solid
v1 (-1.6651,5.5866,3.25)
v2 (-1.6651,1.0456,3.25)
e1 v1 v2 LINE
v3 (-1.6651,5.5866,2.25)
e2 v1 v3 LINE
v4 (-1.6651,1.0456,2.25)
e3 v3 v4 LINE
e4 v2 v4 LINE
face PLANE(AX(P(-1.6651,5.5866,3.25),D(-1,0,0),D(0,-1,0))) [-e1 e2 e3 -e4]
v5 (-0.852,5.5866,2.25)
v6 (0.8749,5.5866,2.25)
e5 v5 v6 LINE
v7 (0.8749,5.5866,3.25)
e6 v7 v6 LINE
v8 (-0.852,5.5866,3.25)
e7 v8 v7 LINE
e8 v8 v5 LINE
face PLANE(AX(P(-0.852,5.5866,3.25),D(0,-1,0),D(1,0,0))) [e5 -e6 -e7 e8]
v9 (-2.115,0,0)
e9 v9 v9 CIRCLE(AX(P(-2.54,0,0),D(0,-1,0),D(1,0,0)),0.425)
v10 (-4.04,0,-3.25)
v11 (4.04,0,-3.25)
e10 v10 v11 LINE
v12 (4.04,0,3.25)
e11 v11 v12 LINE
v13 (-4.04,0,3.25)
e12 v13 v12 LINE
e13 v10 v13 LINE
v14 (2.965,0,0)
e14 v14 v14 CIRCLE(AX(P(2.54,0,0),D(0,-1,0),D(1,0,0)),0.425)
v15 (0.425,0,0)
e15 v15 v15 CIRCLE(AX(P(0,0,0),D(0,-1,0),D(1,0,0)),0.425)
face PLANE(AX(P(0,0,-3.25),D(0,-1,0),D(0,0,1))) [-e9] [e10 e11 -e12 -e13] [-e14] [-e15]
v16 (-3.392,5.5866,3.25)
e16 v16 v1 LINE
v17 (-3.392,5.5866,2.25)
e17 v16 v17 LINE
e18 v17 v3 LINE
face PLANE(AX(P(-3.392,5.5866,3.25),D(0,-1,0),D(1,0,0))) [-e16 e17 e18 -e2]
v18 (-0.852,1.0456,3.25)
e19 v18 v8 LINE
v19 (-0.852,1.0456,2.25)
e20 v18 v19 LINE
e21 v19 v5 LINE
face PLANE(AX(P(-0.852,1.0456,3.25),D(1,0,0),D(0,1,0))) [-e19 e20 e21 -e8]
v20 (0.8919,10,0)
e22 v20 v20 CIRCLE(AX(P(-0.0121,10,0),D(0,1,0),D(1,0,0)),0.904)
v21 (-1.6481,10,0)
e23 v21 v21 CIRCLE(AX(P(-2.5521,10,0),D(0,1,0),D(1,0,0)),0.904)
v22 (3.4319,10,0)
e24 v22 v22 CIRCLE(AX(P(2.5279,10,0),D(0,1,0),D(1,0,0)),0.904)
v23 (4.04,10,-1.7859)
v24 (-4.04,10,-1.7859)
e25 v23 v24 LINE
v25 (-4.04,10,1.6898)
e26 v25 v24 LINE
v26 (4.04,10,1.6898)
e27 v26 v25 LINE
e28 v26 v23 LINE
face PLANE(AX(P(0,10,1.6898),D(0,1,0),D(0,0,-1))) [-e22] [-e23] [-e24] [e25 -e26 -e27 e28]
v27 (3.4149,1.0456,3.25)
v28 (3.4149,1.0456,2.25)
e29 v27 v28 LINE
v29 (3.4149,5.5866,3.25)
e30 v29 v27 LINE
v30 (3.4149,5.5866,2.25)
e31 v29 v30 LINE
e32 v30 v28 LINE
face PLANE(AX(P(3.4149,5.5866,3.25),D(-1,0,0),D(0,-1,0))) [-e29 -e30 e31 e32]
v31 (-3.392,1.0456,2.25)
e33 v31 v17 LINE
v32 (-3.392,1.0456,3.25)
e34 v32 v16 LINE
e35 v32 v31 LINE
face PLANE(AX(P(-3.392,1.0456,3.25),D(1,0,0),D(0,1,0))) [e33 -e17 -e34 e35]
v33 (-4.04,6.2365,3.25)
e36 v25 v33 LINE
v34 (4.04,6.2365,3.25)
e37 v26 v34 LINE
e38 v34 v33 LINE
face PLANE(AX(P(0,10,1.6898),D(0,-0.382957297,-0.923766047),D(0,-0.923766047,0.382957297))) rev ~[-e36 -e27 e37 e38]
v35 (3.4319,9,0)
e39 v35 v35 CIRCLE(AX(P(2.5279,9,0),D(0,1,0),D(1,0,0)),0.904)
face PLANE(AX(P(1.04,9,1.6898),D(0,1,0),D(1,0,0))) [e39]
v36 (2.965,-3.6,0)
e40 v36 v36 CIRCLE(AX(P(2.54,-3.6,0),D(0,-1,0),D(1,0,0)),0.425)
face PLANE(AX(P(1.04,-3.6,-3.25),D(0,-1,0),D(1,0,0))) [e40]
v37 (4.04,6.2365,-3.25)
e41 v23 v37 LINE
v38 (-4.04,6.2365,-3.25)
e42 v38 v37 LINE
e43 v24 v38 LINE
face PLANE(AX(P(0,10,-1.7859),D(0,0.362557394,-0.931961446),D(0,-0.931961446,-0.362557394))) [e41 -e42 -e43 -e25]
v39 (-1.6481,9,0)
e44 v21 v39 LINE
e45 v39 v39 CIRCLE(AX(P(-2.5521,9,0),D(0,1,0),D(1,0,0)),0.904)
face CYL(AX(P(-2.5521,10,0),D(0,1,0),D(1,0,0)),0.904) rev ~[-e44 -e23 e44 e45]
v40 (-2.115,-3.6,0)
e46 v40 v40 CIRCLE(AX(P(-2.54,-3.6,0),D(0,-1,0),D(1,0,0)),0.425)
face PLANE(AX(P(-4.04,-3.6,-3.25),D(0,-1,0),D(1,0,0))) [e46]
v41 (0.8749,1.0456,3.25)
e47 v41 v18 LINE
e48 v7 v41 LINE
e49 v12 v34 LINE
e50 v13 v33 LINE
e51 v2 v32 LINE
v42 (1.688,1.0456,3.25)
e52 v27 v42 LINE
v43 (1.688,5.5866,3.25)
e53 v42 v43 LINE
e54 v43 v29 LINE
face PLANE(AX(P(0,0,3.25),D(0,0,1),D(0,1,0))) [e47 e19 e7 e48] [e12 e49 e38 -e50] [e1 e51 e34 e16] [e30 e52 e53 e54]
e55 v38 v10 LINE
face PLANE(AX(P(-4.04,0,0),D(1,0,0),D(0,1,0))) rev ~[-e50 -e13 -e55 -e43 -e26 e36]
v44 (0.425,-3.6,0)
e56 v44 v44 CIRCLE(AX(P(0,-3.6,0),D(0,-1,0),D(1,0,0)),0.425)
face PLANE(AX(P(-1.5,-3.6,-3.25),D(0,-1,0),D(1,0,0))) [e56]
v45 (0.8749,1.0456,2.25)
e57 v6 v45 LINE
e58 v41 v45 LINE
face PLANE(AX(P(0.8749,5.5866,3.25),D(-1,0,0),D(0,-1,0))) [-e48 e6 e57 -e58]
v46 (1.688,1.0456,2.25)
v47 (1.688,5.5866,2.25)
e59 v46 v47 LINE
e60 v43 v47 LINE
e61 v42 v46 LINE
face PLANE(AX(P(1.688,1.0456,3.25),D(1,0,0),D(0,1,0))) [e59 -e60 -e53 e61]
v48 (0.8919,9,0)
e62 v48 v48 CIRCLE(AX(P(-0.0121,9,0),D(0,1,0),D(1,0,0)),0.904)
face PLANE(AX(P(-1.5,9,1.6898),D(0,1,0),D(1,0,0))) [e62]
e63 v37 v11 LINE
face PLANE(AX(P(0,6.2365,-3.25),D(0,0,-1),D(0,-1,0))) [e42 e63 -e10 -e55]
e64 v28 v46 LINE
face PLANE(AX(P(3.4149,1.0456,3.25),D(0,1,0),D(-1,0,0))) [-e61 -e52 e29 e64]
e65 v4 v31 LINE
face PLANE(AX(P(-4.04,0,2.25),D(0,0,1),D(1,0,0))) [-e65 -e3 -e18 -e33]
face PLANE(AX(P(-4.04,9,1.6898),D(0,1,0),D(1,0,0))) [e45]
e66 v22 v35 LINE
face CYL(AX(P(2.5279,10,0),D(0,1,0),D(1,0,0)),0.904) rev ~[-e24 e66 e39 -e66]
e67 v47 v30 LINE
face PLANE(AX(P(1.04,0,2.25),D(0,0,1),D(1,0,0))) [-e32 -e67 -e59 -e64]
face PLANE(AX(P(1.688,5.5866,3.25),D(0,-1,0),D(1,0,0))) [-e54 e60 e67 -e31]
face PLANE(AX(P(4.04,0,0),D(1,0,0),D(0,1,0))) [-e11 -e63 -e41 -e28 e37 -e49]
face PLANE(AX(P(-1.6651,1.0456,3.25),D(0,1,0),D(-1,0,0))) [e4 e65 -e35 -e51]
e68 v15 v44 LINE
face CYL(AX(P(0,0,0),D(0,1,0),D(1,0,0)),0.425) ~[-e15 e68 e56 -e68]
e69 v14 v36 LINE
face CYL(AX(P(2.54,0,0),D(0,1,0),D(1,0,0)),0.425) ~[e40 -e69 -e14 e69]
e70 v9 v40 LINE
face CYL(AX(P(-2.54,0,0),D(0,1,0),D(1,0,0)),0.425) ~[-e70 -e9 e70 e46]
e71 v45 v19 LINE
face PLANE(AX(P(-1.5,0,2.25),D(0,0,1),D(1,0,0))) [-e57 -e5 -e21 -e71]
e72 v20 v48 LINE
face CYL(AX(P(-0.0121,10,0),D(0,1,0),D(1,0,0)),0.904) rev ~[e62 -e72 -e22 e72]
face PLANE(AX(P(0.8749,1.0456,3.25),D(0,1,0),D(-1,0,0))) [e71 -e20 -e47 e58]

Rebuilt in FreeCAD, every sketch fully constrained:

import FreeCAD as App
import Part
import Sketcher

V = App.Vector
Q = App.Units.Quantity

doc = App.newDocument("Part")
body = doc.addObject("PartDesign::Body", "Body")

sketch1 = doc.addObject("Sketcher::SketchObject", "Sketch")
body.addObject(sketch1)
sketch1.AttachmentSupport = (doc.YZ_Plane, [""])
sketch1.MapMode = "FlatFace"
sketch1.addGeometry([
    Part.LineSegment(V(6.2, 3.2, 0), V(0, 3.2, 0)),
    Part.LineSegment(V(0, 3.2, 0), V(0, -3.2, 0)),
    Part.LineSegment(V(0, -3.2, 0), V(6.2, -3.2, 0)),
    Part.LineSegment(V(6.2, -3.2, 0), V(10, -1.8, 0)),
    Part.LineSegment(V(10, -1.8, 0), V(10, 1.7, 0)),
    Part.LineSegment(V(10, 1.7, 0), V(6.2, 3.2, 0)),
], False)
sketch1.addConstraint([
    Sketcher.Constraint("Coincident", 0, 2, 1, 1),
    Sketcher.Constraint("Coincident", 1, 2, 2, 1),
    Sketcher.Constraint("Coincident", 2, 2, 3, 1),
    Sketcher.Constraint("Coincident", 3, 2, 4, 1),
    Sketcher.Constraint("Coincident", 4, 2, 5, 1),
    Sketcher.Constraint("Coincident", 5, 2, 0, 1),
    Sketcher.Constraint("Horizontal", 0),
    Sketcher.Constraint("Vertical", 1),
    Sketcher.Constraint("Horizontal", 2),
    Sketcher.Constraint("Vertical", 4),
    Sketcher.Constraint("Symmetric", 0, 2, 1, 2, -1, 1),
    Sketcher.Constraint("Vertical", 2, 2, 5, 2),
    Sketcher.Constraint("DistanceY", 1, 2, 1, 1, Q("6.5 mm")),
    Sketcher.Constraint("DistanceX", -1, 1, 3, 2, Q("10 mm")),
    Sketcher.Constraint("Distance", 5, Q("4.074 mm")),
    Sketcher.Constraint("DistanceX", 0, 2, 0, 1, Q("6.2365 mm")),
    Sketcher.Constraint("DistanceY", 4, 1, 4, 2, Q("3.4757 mm")),
])
pad1 = doc.addObject("PartDesign::Pad", "Pad")
body.addObject(pad1)
pad1.Profile = sketch1
pad1.Length = 8.08
pad1.Midplane = True

sketch2 = doc.addObject("Sketcher::SketchObject", "Sketch001")
body.addObject(sketch2)
sketch2.AttachmentSupport = (doc.XZ_Plane, [""])
sketch2.MapMode = "FlatFace"
sketch2.addGeometry(Part.Circle(V(-2.54, 0, 0), V(0, 0, 1), 0.42), False)
sketch2.addConstraint([
    Sketcher.Constraint("PointOnObject", 0, 3, -1),
    Sketcher.Constraint("Diameter", 0, Q("0.85 mm")),
    Sketcher.Constraint("DistanceX", 0, 3, -1, 1, Q("2.54 mm")),
])
pad2 = doc.addObject("PartDesign::Pad", "Pad001")
body.addObject(pad2)
pad2.Profile = sketch2
pad2.Length = 3.6

sketch3 = doc.addObject("Sketcher::SketchObject", "Sketch002")
body.addObject(sketch3)
sketch3.AttachmentSupport = (doc.XZ_Plane, [""])
sketch3.MapMode = "FlatFace"
sketch3.AttachmentOffset = App.Placement(V(0, 0, -10), App.Rotation())
sketch3.addGeometry(Part.Circle(V(-2.6, 0, 0), V(0, 0, 1), 0.9), False)
sketch3.addConstraint([
    Sketcher.Constraint("PointOnObject", 0, 3, -1),
    Sketcher.Constraint("Diameter", 0, Q("1.808 mm")),
    Sketcher.Constraint("DistanceX", 0, 3, -1, 1, Q("2.552 mm")),
])
pocket1 = doc.addObject("PartDesign::Pocket", "Pocket")
body.addObject(pocket1)
pocket1.Profile = sketch3
pocket1.Length = 1
pocket1.Reversed = True

sketch4 = doc.addObject("Sketcher::SketchObject", "Sketch003")
body.addObject(sketch4)
sketch4.AttachmentSupport = (doc.XY_Plane, [""])
sketch4.MapMode = "FlatFace"
sketch4.AttachmentOffset = App.Placement(V(0, 0, 3.25), App.Rotation())
sketch4.addGeometry([
    Part.LineSegment(V(-1.7, 5.6, 0), V(-3.4, 5.6, 0)),
    Part.LineSegment(V(-3.4, 5.6, 0), V(-3.4, 1, 0)),
    Part.LineSegment(V(-3.4, 1, 0), V(-1.7, 1, 0)),
    Part.LineSegment(V(-1.7, 1, 0), V(-1.7, 5.6, 0)),
], False)
sketch4.addConstraint([
    Sketcher.Constraint("Coincident", 0, 2, 1, 1),
    Sketcher.Constraint("Coincident", 1, 2, 2, 1),
    Sketcher.Constraint("Coincident", 2, 2, 3, 1),
    Sketcher.Constraint("Coincident", 3, 2, 0, 1),
    Sketcher.Constraint("Horizontal", 0),
    Sketcher.Constraint("Vertical", 1),
    Sketcher.Constraint("Horizontal", 2),
    Sketcher.Constraint("Vertical", 3),
    Sketcher.Constraint("DistanceX", 0, 2, 0, 1, Q("1.727 mm")),
    Sketcher.Constraint("DistanceY", 1, 2, 1, 1, Q("4.541 mm")),
    Sketcher.Constraint("DistanceX", 0, 2, -1, 1, Q("3.392 mm")),
    Sketcher.Constraint("DistanceY", -1, 1, 0, 2, Q("5.5866 mm")),
])
pocket2 = doc.addObject("PartDesign::Pocket", "Pocket001")
body.addObject(pocket2)
pocket2.Profile = sketch4
pocket2.Length = 1
doc.recompute()

linearpattern = doc.addObject("PartDesign::LinearPattern", "LinearPattern")
body.addObject(linearpattern)
linearpattern.Originals = [pocket2, pocket1, pad2]
linearpattern.Direction = (doc.X_Axis, [""])
linearpattern.Mode = "offset"
linearpattern.Offset = 2.54
linearpattern.Occurrences = 3
body.Tip = linearpattern

doc.recompute()
